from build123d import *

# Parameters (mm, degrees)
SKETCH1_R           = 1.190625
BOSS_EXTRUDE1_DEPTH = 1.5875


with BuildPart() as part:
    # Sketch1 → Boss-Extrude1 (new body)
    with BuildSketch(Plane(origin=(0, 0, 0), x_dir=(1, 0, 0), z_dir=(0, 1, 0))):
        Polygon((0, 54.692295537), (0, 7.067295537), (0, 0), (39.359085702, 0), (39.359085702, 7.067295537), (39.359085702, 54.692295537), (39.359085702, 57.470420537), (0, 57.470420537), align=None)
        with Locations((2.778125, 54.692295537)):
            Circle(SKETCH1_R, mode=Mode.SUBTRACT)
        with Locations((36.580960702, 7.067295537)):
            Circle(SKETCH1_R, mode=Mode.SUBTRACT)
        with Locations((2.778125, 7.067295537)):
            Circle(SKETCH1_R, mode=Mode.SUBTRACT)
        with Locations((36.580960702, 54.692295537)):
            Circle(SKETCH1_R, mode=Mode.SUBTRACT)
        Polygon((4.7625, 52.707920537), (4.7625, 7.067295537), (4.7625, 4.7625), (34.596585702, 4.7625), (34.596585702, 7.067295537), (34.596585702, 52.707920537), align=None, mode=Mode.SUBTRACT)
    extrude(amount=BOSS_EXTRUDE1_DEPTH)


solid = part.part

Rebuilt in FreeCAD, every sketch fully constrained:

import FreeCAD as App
import Part
import Sketcher
from FreeCAD import Vector
Q = App.Units.Quantity


def add_polygon(sketch, points):
    """Adds a closed chain of lines whose ends are joined by coincident constraints."""
    first, n = sketch.GeometryCount, len(points)
    for a, b in zip(points, points[1:] + points[:1]):
        sketch.addGeometry(Part.LineSegment(App.Vector(*a, 0), App.Vector(*b, 0)), False)
    for i in range(n):
        sketch.addConstraint(Sketcher.Constraint("Coincident", first + i, 2, first + (i + 1) % n, 1))

doc = App.newDocument("Part")
params = doc.addObject("Spreadsheet::Sheet", "Params")
for row, (alias, value) in enumerate([
    ("sketch1_diameter", "0.09375 in"),
    ("pad1_length", "0.0625 in"),
], start=1):
    params.set(f"A{row}", alias)
    params.set(f"B{row}", "=" + value)
    params.setAlias(f"B{row}", alias)

body = doc.addObject("PartDesign::Body", "Body")

# Sketch on XZ plane
sketch1 = body.newObject("Sketcher::SketchObject", "Sketch")
sketch1.AttachmentSupport = (doc.getObject("XZ_Plane"), [""])
sketch1.MapMode = "FlatFace"
add_polygon(sketch1, [(0, 0), (39.359086, 0), (39.359086, -57.470421), (0, -57.470421)])  # lines 0-3
sketch1.addGeometry(Part.Circle(Vector(2.778125, -7.067296, 0), Vector(0, 0, 1), 1.190625), False)  # 4
sketch1.addGeometry(Part.Circle(Vector(36.580961, -7.067296, 0), Vector(0, 0, 1), 1.190625), False)  # 5
add_polygon(sketch1, [(4.7625, -4.7625), (4.7625, -52.707921), (34.596586, -52.707921), (34.596586, -4.7625)])  # lines 6-9
sketch1.addGeometry(Part.Circle(Vector(2.778125, -54.692296, 0), Vector(0, 0, 1), 1.190625), False)  # 10
sketch1.addGeometry(Part.Circle(Vector(36.580961, -54.692296, 0), Vector(0, 0, 1), 1.190625), False)  # 11
sketch1.addConstraint([
    Sketcher.Constraint("Horizontal", 0),
    Sketcher.Constraint("Vertical", 1),
    Sketcher.Constraint("Horizontal", 2),
    Sketcher.Constraint("Vertical", 3),
    Sketcher.Constraint("Vertical", 6),
    Sketcher.Constraint("Horizontal", 7),
    Sketcher.Constraint("Vertical", 8),
    Sketcher.Constraint("Horizontal", 9),
    Sketcher.Constraint("Coincident", 3, 2, -1, 1),
    Sketcher.Constraint("Equal", 4, 5),
    Sketcher.Constraint("Equal", 5, 10),
    Sketcher.Constraint("Equal", 10, 11),
    Sketcher.Constraint("Horizontal", 4, 3, 5, 3),
    Sketcher.Constraint("Horizontal", 10, 3, 11, 3),
    Sketcher.Constraint("Vertical", 4, 3, 10, 3),
    Sketcher.Constraint("Vertical", 5, 3, 11, 3),
    Sketcher.Constraint("Diameter", 4, Q("0.09375 in")),
    Sketcher.Constraint("DistanceX", -1, 1, 4, 3, Q("0.109375 in")),
    Sketcher.Constraint("DistanceX", -1, 1, 6, 2, Q("0.1875 in")),
    Sketcher.Constraint("DistanceY", 8, 2, -1, 1, Q("0.1875 in")),
    Sketcher.Constraint("DistanceY", 10, 3, 4, 3, Q("1.875 in")),
    Sketcher.Constraint("DistanceX", 5, 3, 0, 2, Q("0.109375 in")),
    Sketcher.Constraint("DistanceY", 1, 2, 11, 3, Q("0.109375 in")),
    Sketcher.Constraint("DistanceY", 10, 3, 6, 2, Q("0.078125 in")),
    Sketcher.Constraint("DistanceX", 7, 2, 11, 3, Q("0.078125 in")),
    Sketcher.Constraint("DistanceY", 1, 2, 1, 1, 57.470421),
    Sketcher.Constraint("DistanceX", 0, 1, 0, 2, 39.359086),
])
sketch1.setExpression("Constraints[24]", "Params.sketch1_diameter")
pad1 = body.newObject("PartDesign::Pad", "Pad")
pad1.Profile = sketch1
pad1.setExpression("Length", "Params.pad1_length")
pad1.Reversed = True

doc.recompute()
